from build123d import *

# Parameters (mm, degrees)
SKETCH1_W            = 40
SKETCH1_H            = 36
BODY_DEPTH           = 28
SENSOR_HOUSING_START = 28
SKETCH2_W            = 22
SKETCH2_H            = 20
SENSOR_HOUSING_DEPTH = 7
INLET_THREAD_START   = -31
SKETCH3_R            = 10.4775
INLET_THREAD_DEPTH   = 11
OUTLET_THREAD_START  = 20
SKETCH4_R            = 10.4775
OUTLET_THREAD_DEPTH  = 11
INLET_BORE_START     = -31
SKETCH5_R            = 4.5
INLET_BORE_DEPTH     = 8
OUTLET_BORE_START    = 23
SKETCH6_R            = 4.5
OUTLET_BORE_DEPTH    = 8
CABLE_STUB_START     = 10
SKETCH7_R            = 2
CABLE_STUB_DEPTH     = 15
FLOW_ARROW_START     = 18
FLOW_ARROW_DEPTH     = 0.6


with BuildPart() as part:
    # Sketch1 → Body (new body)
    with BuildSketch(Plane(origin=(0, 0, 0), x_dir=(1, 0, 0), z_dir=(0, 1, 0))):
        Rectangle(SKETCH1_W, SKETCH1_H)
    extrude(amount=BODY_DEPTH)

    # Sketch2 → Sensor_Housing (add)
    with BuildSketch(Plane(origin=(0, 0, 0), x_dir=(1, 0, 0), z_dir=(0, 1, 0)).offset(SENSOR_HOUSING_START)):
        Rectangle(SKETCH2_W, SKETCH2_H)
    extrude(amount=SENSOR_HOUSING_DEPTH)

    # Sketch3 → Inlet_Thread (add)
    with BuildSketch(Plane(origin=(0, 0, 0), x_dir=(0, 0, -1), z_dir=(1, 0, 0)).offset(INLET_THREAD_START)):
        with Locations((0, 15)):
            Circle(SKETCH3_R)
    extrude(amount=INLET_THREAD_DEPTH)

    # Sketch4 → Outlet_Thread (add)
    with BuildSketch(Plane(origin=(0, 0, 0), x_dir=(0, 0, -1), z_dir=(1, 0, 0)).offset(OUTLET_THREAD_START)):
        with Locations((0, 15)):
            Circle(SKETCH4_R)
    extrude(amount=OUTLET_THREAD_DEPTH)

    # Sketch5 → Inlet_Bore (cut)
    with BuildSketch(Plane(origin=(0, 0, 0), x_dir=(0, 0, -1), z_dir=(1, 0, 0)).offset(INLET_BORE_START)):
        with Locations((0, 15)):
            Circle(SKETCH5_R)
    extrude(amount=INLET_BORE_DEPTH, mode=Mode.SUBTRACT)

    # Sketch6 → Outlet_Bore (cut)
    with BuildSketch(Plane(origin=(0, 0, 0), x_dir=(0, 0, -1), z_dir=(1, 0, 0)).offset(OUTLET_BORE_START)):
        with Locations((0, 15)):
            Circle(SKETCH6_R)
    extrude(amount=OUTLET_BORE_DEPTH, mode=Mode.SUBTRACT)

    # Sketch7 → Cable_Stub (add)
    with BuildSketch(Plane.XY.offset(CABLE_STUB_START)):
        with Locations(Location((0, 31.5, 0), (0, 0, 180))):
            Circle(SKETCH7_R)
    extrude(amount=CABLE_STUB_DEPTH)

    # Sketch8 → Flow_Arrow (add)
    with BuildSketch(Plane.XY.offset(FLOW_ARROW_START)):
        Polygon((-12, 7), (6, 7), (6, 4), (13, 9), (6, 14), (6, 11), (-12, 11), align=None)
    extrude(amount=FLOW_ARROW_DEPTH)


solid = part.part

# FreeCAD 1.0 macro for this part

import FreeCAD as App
import Part
import Sketcher

V = App.Vector
Q = App.Units.Quantity


def add_polygon(sketch, points):
    """Adds a closed chain of lines whose ends are joined by coincident constraints."""
    first, n = sketch.GeometryCount, len(points)
    for a, b in zip(points, points[1:] + points[:1]):
        sketch.addGeometry(Part.LineSegment(App.Vector(*a, 0), App.Vector(*b, 0)), False)
    for i in range(n):
        sketch.addConstraint(Sketcher.Constraint("Coincident", first + i, 2, first + (i + 1) % n, 1))

doc = App.newDocument("Part")
params = doc.addObject("Spreadsheet::Sheet", "Params")
for row, (alias, value) in enumerate([
    ("sketch1_width", "40 mm"),
    ("sketch1_height", "36 mm"),
    ("pad1_length", "28 mm"),
    ("sketch2_width", "22 mm"),
    ("sketch2_height", "20 mm"),
    ("pad2_length", "7 mm"),
    ("pad3_length", "11 mm"),
    ("pad4_length", "11 mm"),
    ("sketch5_diameter", "9 mm"),
    ("pocket1_length", "8 mm"),
    ("sketch6_diameter", "9 mm"),
    ("pocket2_length", "8 mm"),
    ("sketch7_diameter", "4 mm"),
    ("pad5_length", "15 mm"),
    ("sketch8_width", "18 mm"),
    ("sketch8_height", "3 mm"),
    ("sketch8_height2", "4 mm"),
    ("pad6_length", "0.6 mm"),
], start=1):
    params.set(f"A{row}", alias)
    params.set(f"B{row}", "=" + value)
    params.setAlias(f"B{row}", alias)

body = doc.addObject("PartDesign::Body", "Body")

# Sketch on XZ plane
sketch1 = body.newObject("Sketcher::SketchObject", "Sketch")
sketch1.AttachmentSupport = (doc.getObject("XZ_Plane"), [""])
sketch1.MapMode = "FlatFace"
add_polygon(sketch1, [(-20, -18), (-20, 18), (20, 18), (20, -18)])  # lines 0-3
sketch1.addConstraint(Sketcher.Constraint("Vertical", 0))
sketch1.addConstraint(Sketcher.Constraint("Horizontal", 1))
sketch1.addConstraint(Sketcher.Constraint("Vertical", 2))
sketch1.addConstraint(Sketcher.Constraint("Horizontal", 3))
sketch1.addConstraint(Sketcher.Constraint("Symmetric", 0, 2, 2, 2, -1, 1))
sketch1.addConstraint(Sketcher.Constraint("DistanceX", 1, 1, 1, 2, Q("40 mm")))
sketch1.addConstraint(Sketcher.Constraint("DistanceY", 0, 1, 0, 2, Q("36 mm")))
sketch1.setExpression("Constraints[9]", "Params.sketch1_width")
sketch1.setExpression("Constraints[10]", "Params.sketch1_height")
pad1 = body.newObject("PartDesign::Pad", "Pad")
pad1.Profile = sketch1
pad1.setExpression("Length", "Params.pad1_length")
pad1.Reversed = True

# Sketch on XZ plane
sketch2 = body.newObject("Sketcher::SketchObject", "Sketch001")
sketch2.AttachmentSupport = (doc.getObject("XZ_Plane"), [""])
sketch2.MapMode = "FlatFace"
sketch2.AttachmentOffset = App.Placement(V(0, 0, -28), App.Rotation())
add_polygon(sketch2, [(-11, -10), (-11, 10), (11, 10), (11, -10)])  # lines 0-3
sketch2.addConstraint(Sketcher.Constraint("Vertical", 0))
sketch2.addConstraint(Sketcher.Constraint("Horizontal", 1))
sketch2.addConstraint(Sketcher.Constraint("Vertical", 2))
sketch2.addConstraint(Sketcher.Constraint("Horizontal", 3))
sketch2.addConstraint(Sketcher.Constraint("Symmetric", 0, 2, 2, 2, -1, 1))
sketch2.addConstraint(Sketcher.Constraint("DistanceX", 1, 1, 1, 2, Q("22 mm")))
sketch2.addConstraint(Sketcher.Constraint("DistanceY", 0, 1, 0, 2, Q("20 mm")))
sketch2.setExpression("Constraints[9]", "Params.sketch2_width")
sketch2.setExpression("Constraints[10]", "Params.sketch2_height")
pad2 = body.newObject("PartDesign::Pad", "Pad001")
pad2.Profile = sketch2
pad2.setExpression("Length", "Params.pad2_length")
pad2.Reversed = True

# Sketch on YZ plane
sketch3 = body.newObject("Sketcher::SketchObject", "Sketch002")
sketch3.AttachmentSupport = (doc.getObject("YZ_Plane"), [""])
sketch3.MapMode = "FlatFace"
sketch3.AttachmentOffset = App.Placement(V(0, 0, -31), App.Rotation())
sketch3.addGeometry(Part.Circle(V(15, 0, 0), V(0, 0, 1), 10), False)
sketch3.addConstraint(Sketcher.Constraint("PointOnObject", 0, 3, -1))
sketch3.addConstraint(Sketcher.Constraint("Diameter", 0, Q("20.955 mm")))
sketch3.addConstraint(Sketcher.Constraint("DistanceX", -1, 1, 0, 3, Q("15 mm")))
pad3 = body.newObject("PartDesign::Pad", "Pad002")
pad3.Profile = sketch3
pad3.setExpression("Length", "Params.pad3_length")

# Sketch on YZ plane
sketch4 = body.newObject("Sketcher::SketchObject", "Sketch003")
sketch4.AttachmentSupport = (doc.getObject("YZ_Plane"), [""])
sketch4.MapMode = "FlatFace"
sketch4.AttachmentOffset = App.Placement(V(0, 0, 20), App.Rotation())
sketch4.addGeometry(Part.Circle(V(15, 0, 0), V(0, 0, 1), 10), False)
sketch4.addConstraint(Sketcher.Constraint("PointOnObject", 0, 3, -1))
sketch4.addConstraint(Sketcher.Constraint("Diameter", 0, Q("20.955 mm")))
sketch4.addConstraint(Sketcher.Constraint("DistanceX", -1, 1, 0, 3, Q("15 mm")))
pad4 = body.newObject("PartDesign::Pad", "Pad003")
pad4.Profile = sketch4
pad4.setExpression("Length", "Params.pad4_length")

# Sketch on YZ plane
sketch5 = body.newObject("Sketcher::SketchObject", "Sketch004")
sketch5.AttachmentSupport = (doc.getObject("YZ_Plane"), [""])
sketch5.MapMode = "FlatFace"
sketch5.AttachmentOffset = App.Placement(V(0, 0, -31), App.Rotation())
sketch5.addGeometry(Part.Circle(V(15, 0, 0), V(0, 0, 1), 4.5), False)
sketch5.addConstraint(Sketcher.Constraint("PointOnObject", 0, 3, -1))
sketch5.addConstraint(Sketcher.Constraint("Diameter", 0, Q("9 mm")))
sketch5.addConstraint(Sketcher.Constraint("DistanceX", -1, 1, 0, 3, Q("15 mm")))
sketch5.setExpression("Constraints[1]", "Params.sketch5_diameter")
pocket1 = body.newObject("PartDesign::Pocket", "Pocket")
pocket1.Profile = sketch5
pocket1.setExpression("Length", "Params.pocket1_length")
pocket1.Reversed = True

# Sketch on YZ plane
sketch6 = body.newObject("Sketcher::SketchObject", "Sketch005")
sketch6.AttachmentSupport = (doc.getObject("YZ_Plane"), [""])
sketch6.MapMode = "FlatFace"
sketch6.AttachmentOffset = App.Placement(V(0, 0, 23), App.Rotation())
sketch6.addGeometry(Part.Circle(V(15, 0, 0), V(0, 0, 1), 4.5), False)
sketch6.addConstraint(Sketcher.Constraint("PointOnObject", 0, 3, -1))
sketch6.addConstraint(Sketcher.Constraint("Diameter", 0, Q("9 mm")))
sketch6.addConstraint(Sketcher.Constraint("DistanceX", -1, 1, 0, 3, Q("15 mm")))
sketch6.setExpression("Constraints[1]", "Params.sketch6_diameter")
pocket2 = body.newObject("PartDesign::Pocket", "Pocket001")
pocket2.Profile = sketch6
pocket2.setExpression("Length", "Params.pocket2_length")
pocket2.Reversed = True

# Sketch on XY plane
sketch7 = body.newObject("Sketcher::SketchObject", "Sketch006")
sketch7.AttachmentSupport = (doc.getObject("XY_Plane"), [""])
sketch7.MapMode = "FlatFace"
sketch7.AttachmentOffset = App.Placement(V(0, 0, 10), App.Rotation())
sketch7.addGeometry(Part.Circle(V(0, 31.5, 0), V(0, 0, 1), 2), False)
sketch7.addConstraint(Sketcher.Constraint("PointOnObject", 0, 3, -2))
sketch7.addConstraint(Sketcher.Constraint("Diameter", 0, Q("4 mm")))
sketch7.addConstraint(Sketcher.Constraint("DistanceY", -1, 1, 0, 3, Q("31.5 mm")))
sketch7.setExpression("Constraints[1]", "Params.sketch7_diameter")
pad5 = body.newObject("PartDesign::Pad", "Pad004")
pad5.Profile = sketch7
pad5.setExpression("Length", "Params.pad5_length")

# Sketch on XY plane
sketch8 = body.newObject("Sketcher::SketchObject", "Sketch007")
sketch8.AttachmentSupport = (doc.getObject("XY_Plane"), [""])
sketch8.MapMode = "FlatFace"
sketch8.AttachmentOffset = App.Placement(V(0, 0, 18), App.Rotation())
add_polygon(sketch8, [(-12, 7), (6, 7), (6, 4), (13, 9), (6, 14), (6, 11), (-12, 11)])  # lines 0-6
sketch8.addConstraint(Sketcher.Constraint("Horizontal", 0))
sketch8.addConstraint(Sketcher.Constraint("Vertical", 1))
sketch8.addConstraint(Sketcher.Constraint("Vertical", 4))
sketch8.addConstraint(Sketcher.Constraint("Horizontal", 5))
sketch8.addConstraint(Sketcher.Constraint("Vertical", 6))
sketch8.addConstraint(Sketcher.Constraint("Vertical", 1, 2, 3, 2))
sketch8.addConstraint(Sketcher.Constraint("Equal", 1, 4))
sketch8.addConstraint(Sketcher.Constraint("Equal", 2, 3))
sketch8.addConstraint(Sketcher.Constraint("DistanceX", 0, 1, 0, 2, Q("18 mm")))
sketch8.addConstraint(Sketcher.Constraint("DistanceY", 1, 2, 1, 1, Q("3 mm")))
sketch8.addConstraint(Sketcher.Constraint("DistanceY", 6, 2, 6, 1, Q("4 mm")))
sketch8.addConstraint(Sketcher.Constraint("DistanceX", -1, 1, 0, 2, Q("6 mm")))
sketch8.addConstraint(Sketcher.Constraint("DistanceY", -1, 1, 0, 2, Q("7 mm")))
sketch8.addConstraint(Sketcher.Constraint("DistanceX", -1, 1, 2, 2, Q("13 mm")))
sketch8.setExpression("Constraints[15]", "Params.sketch8_width")
sketch8.setExpression("Constraints[16]", "Params.sketch8_height")
sketch8.setExpression("Constraints[17]", "Params.sketch8_height2")
pad6 = body.newObject("PartDesign::Pad", "Pad005")
pad6.Profile = sketch8
pad6.setExpression("Length", "Params.pad6_length")

doc.recompute()
